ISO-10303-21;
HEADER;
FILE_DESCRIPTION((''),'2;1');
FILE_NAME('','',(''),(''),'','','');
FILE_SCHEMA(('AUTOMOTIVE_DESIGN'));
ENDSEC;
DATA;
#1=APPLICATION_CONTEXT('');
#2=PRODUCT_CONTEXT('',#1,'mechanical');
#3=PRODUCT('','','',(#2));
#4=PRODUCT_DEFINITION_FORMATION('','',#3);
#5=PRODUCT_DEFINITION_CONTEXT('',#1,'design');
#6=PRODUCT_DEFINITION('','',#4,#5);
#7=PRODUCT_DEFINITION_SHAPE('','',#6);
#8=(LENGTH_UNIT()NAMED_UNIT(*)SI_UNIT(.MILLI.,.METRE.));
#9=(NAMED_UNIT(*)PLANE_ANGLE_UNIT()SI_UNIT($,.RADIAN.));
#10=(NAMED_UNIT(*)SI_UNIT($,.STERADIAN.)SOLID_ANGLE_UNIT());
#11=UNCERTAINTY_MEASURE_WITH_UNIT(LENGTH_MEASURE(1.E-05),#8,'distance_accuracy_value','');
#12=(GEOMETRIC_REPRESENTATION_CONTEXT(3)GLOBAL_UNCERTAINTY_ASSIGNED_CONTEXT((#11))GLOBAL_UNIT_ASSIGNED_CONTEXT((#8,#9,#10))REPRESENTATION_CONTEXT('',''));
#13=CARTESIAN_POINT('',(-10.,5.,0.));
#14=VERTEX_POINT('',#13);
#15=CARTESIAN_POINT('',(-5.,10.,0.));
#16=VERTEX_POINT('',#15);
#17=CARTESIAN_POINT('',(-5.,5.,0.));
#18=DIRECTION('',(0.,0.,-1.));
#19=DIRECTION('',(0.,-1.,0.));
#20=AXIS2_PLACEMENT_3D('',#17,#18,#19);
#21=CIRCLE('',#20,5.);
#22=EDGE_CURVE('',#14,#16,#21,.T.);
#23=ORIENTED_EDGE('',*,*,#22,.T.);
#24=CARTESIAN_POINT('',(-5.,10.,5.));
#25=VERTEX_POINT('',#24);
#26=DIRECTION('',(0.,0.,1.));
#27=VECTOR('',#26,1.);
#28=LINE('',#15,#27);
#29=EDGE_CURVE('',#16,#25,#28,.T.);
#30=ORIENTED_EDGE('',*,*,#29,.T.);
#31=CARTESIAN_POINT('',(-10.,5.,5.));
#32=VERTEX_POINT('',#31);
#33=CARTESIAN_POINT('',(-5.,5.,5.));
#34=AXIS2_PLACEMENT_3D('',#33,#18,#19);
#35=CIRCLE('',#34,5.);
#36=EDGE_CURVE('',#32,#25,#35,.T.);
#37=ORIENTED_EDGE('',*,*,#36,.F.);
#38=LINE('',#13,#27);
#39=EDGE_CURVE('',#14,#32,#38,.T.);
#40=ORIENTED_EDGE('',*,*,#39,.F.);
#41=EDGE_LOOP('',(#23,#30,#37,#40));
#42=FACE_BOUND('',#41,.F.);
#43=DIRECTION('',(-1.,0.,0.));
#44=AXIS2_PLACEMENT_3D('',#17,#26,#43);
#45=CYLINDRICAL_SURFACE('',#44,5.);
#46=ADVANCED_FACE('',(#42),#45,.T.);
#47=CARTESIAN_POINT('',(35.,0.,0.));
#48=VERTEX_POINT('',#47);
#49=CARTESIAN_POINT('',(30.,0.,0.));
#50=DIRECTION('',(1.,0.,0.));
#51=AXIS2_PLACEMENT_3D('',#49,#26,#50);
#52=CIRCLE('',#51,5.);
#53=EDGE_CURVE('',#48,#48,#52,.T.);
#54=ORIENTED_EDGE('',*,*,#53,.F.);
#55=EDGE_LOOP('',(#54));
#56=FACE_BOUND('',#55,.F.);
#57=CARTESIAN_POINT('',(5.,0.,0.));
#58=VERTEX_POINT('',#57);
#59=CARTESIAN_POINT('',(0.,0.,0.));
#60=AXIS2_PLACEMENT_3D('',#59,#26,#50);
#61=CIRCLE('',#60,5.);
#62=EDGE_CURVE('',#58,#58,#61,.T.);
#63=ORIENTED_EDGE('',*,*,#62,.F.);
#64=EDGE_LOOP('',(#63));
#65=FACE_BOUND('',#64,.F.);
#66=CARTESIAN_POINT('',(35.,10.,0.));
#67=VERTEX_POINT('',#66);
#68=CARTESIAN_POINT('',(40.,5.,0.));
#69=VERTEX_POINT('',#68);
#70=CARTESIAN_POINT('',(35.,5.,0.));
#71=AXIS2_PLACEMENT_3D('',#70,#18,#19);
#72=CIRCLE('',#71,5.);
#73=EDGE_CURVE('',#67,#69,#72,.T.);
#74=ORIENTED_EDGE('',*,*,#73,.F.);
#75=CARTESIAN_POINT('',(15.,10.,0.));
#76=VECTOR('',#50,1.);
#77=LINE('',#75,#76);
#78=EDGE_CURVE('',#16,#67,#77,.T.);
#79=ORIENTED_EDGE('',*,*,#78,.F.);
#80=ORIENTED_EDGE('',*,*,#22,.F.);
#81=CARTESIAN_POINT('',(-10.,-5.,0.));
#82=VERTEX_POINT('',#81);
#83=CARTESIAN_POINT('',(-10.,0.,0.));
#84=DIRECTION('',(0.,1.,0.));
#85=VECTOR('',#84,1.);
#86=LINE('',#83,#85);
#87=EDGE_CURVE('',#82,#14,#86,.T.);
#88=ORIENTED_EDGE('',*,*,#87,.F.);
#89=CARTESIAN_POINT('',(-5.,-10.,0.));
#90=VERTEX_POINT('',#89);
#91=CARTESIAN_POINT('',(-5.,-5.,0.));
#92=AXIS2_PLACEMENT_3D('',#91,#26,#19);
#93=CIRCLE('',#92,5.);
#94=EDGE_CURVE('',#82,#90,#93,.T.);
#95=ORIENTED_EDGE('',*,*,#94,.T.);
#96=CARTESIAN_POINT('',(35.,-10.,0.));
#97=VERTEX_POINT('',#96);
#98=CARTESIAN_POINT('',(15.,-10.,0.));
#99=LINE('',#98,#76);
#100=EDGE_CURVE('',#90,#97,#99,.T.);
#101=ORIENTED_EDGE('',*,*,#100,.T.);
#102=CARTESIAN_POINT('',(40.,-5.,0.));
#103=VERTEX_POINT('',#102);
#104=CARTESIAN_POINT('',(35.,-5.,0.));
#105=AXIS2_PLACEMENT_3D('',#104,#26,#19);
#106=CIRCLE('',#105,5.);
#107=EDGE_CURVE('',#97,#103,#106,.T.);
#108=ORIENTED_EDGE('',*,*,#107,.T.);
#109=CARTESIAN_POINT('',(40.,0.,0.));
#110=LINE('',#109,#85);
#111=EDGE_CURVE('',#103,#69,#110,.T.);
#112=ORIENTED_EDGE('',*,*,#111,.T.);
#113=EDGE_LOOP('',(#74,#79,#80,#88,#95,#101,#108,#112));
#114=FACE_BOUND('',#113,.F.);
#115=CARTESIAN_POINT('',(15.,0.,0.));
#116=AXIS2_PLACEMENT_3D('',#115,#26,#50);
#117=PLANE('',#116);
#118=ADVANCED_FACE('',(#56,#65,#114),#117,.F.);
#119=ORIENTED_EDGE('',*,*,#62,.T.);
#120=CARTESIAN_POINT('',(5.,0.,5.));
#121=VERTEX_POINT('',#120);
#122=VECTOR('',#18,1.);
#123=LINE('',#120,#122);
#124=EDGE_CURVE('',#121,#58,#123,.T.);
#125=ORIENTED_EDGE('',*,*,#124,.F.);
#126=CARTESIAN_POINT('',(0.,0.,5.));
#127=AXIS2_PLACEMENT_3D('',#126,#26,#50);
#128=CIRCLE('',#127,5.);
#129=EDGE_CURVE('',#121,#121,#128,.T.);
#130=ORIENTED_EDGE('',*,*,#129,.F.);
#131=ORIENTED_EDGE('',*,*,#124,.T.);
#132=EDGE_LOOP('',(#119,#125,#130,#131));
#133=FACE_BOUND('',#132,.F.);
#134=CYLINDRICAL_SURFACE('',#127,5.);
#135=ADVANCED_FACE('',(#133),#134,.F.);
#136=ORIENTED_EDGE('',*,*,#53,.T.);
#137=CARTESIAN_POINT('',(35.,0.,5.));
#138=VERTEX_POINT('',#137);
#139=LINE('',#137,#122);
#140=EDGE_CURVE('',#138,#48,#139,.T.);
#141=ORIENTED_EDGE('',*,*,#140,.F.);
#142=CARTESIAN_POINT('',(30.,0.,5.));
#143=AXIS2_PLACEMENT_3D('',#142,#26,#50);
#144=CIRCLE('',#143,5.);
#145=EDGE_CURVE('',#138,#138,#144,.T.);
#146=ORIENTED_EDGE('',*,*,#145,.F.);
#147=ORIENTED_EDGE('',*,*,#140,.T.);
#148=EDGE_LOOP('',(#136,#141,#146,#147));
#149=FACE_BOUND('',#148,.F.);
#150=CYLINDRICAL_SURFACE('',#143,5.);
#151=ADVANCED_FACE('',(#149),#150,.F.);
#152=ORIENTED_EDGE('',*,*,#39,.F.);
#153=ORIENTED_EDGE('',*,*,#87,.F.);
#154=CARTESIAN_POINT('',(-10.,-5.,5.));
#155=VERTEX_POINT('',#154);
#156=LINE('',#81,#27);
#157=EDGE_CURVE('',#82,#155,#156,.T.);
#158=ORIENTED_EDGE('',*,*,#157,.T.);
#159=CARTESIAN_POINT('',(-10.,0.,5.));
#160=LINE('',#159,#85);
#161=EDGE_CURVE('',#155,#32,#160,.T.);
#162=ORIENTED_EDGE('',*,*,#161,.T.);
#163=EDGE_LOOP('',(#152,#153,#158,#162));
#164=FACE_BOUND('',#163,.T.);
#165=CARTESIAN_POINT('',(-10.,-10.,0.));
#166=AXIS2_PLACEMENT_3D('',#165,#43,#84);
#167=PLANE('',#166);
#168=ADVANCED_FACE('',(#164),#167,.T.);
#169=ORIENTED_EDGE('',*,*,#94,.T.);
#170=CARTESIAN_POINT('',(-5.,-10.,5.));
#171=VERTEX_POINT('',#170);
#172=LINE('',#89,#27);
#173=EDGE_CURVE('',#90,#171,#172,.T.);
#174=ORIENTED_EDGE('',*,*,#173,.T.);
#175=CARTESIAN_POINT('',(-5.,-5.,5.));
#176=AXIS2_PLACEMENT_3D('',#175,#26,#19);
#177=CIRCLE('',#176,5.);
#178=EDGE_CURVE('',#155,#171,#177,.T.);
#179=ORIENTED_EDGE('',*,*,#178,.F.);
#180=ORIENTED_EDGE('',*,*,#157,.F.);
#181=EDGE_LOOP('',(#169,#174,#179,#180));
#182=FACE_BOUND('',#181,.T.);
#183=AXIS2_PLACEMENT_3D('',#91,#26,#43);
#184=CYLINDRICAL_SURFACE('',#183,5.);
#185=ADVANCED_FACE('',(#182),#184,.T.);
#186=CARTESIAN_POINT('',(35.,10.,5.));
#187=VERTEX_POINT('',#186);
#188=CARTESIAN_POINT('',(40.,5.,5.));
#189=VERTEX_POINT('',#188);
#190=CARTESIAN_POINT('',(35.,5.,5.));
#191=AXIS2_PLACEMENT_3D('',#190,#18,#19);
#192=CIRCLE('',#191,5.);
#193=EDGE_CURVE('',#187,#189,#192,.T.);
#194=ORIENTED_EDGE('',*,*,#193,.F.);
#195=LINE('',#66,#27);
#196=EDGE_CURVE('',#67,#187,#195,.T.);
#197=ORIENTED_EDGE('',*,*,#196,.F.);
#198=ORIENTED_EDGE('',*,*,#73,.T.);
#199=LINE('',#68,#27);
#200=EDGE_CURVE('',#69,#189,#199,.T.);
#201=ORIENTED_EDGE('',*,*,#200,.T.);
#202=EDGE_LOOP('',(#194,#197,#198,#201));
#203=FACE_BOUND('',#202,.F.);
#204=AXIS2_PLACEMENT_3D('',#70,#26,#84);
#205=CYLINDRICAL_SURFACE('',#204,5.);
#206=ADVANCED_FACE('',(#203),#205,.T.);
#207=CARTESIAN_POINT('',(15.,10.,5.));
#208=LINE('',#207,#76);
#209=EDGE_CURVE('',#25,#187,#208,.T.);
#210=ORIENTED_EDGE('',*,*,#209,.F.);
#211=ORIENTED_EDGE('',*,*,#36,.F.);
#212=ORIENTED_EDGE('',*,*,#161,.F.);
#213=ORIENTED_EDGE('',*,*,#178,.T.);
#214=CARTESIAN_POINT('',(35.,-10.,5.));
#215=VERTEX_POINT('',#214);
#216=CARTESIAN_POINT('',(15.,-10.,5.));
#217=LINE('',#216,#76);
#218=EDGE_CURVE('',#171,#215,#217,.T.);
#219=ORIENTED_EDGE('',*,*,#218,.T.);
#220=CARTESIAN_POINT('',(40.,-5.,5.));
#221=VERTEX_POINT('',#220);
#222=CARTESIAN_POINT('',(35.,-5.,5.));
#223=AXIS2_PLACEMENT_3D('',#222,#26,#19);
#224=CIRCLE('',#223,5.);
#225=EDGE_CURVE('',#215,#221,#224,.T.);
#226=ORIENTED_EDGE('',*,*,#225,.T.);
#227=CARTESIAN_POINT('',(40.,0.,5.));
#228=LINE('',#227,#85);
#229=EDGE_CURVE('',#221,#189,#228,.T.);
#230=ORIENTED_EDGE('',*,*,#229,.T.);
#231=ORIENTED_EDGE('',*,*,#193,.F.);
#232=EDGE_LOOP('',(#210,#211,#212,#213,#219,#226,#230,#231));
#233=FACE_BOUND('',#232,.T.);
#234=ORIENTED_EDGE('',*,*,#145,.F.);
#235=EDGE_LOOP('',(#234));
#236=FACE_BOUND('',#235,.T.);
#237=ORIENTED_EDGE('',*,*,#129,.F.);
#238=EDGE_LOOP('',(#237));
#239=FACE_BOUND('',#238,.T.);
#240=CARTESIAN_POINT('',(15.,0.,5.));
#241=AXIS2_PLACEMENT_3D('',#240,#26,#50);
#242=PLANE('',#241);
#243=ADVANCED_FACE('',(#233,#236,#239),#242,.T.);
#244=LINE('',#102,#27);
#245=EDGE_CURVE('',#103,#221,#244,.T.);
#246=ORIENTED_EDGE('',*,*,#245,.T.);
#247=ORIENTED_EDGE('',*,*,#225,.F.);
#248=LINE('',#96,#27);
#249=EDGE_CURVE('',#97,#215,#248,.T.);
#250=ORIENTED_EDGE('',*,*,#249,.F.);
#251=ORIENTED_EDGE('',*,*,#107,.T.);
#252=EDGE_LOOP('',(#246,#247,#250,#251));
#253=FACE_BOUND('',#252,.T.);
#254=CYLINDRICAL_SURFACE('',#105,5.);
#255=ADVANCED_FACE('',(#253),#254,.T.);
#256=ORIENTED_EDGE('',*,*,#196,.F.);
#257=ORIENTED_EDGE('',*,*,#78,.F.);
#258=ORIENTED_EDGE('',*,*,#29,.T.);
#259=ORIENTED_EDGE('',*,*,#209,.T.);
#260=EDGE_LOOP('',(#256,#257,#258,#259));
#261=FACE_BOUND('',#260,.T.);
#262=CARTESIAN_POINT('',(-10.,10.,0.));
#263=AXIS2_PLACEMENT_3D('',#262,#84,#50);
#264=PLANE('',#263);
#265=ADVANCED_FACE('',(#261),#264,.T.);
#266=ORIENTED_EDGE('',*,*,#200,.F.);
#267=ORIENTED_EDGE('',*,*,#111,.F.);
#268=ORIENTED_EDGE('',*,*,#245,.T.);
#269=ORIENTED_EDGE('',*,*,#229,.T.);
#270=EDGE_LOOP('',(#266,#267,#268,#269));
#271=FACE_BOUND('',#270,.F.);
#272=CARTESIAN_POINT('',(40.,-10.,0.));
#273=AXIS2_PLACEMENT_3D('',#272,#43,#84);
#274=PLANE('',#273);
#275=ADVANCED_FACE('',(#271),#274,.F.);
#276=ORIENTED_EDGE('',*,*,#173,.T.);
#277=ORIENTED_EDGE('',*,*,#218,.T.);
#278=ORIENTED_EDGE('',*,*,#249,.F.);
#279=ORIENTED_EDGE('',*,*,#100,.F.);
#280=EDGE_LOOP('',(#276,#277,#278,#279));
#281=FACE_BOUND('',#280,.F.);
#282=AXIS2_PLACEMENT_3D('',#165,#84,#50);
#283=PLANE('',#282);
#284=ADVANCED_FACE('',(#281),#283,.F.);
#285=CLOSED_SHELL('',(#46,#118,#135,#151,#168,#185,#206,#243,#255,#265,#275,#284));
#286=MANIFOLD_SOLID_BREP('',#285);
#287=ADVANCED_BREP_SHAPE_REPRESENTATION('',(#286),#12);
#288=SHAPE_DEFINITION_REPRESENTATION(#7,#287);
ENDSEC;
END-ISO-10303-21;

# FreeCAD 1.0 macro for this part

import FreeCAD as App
import Part
import Sketcher
Q = App.Units.Quantity


def edges_at(feature, points):
    """Names of the edges that pass closest to the given points."""
    edges = feature.Shape.Edges
    near = lambda p: min(range(len(edges)), key=lambda i: edges[i].distToShape(Part.Vertex(*p))[0])
    return sorted({f"Edge{near(p) + 1}" for p in points})

doc = App.newDocument("Part")
body = doc.addObject("PartDesign::Body", "Body")

# Sketch on XY plane
sketch1 = body.newObject("Sketcher::SketchObject", "Sketch")
sketch1.AttachmentSupport = (doc.getObject("XY_Plane"), [""])
sketch1.MapMode = "FlatFace"
sketch1.addGeometry(Part.LineSegment(App.Vector(-10, 10, 0), App.Vector(-10, -10, 0)), False)
sketch1.addGeometry(Part.LineSegment(App.Vector(-10, -10, 0), App.Vector(40, -10, 0)), False)
sketch1.addGeometry(Part.LineSegment(App.Vector(40, -10, 0), App.Vector(40, 10, 0)), False)
sketch1.addGeometry(Part.LineSegment(App.Vector(40, 10, 0), App.Vector(-10, 10, 0)), False)
sketch1.addConstraint(Sketcher.Constraint("Coincident", 0, 2, 1, 1))
sketch1.addConstraint(Sketcher.Constraint("Coincident", 1, 2, 2, 1))
sketch1.addConstraint(Sketcher.Constraint("Coincident", 2, 2, 3, 1))
sketch1.addConstraint(Sketcher.Constraint("Coincident", 3, 2, 0, 1))
sketch1.addConstraint(Sketcher.Constraint("Vertical", 0))
sketch1.addConstraint(Sketcher.Constraint("Horizontal", 1))
sketch1.addConstraint(Sketcher.Constraint("Vertical", 2))
sketch1.addConstraint(Sketcher.Constraint("Horizontal", 3))
sketch1.addConstraint(Sketcher.Constraint("DistanceX", 1, 1, 1, 2, Q("50 mm")))
sketch1.addConstraint(Sketcher.Constraint("DistanceY", 0, 2, 0, 1, Q("20 mm")))
sketch1.addConstraint(Sketcher.Constraint("DistanceX", 0, 2, -1, 1, Q("10 mm")))
sketch1.addConstraint(Sketcher.Constraint("DistanceY", 0, 2, -1, 1, Q("10 mm")))
pad1 = body.newObject("PartDesign::Pad", "Pad")
pad1.Profile = sketch1
pad1.Length = 5

# Sketch on XY plane
sketch2 = body.newObject("Sketcher::SketchObject", "Sketch001")
sketch2.AttachmentSupport = (doc.getObject("XY_Plane"), [""])
sketch2.MapMode = "FlatFace"
sketch2.AttachmentOffset = App.Placement(App.Vector(0, 0, 5), App.Rotation())
sketch2.addGeometry(Part.Circle(App.Vector(0, 0, 0), App.Vector(0, 0, 1), 5), False)
sketch2.addConstraint(Sketcher.Constraint("Coincident", 0, 3, -1, 1))
sketch2.addConstraint(Sketcher.Constraint("Diameter", 0, Q("10 mm")))
pocket1 = body.newObject("PartDesign::Pocket", "Pocket")
pocket1.Profile = sketch2
pocket1.Type = "ThroughAll"

# Sketch on XY plane
sketch3 = body.newObject("Sketcher::SketchObject", "Sketch002")
sketch3.AttachmentSupport = (doc.getObject("XY_Plane"), [""])
sketch3.MapMode = "FlatFace"
sketch3.AttachmentOffset = App.Placement(App.Vector(0, 0, 5), App.Rotation())
sketch3.addGeometry(Part.Circle(App.Vector(30, 0, 0), App.Vector(0, 0, 1), 5), False)
sketch3.addConstraint(Sketcher.Constraint("PointOnObject", 0, 3, -1))
sketch3.addConstraint(Sketcher.Constraint("Diameter", 0, Q("10 mm")))
sketch3.addConstraint(Sketcher.Constraint("DistanceX", -1, 1, 0, 3, Q("30 mm")))
pocket2 = body.newObject("PartDesign::Pocket", "Pocket001")
pocket2.Profile = sketch3
pocket2.Type = "ThroughAll"
doc.recompute()

fillet = body.newObject("PartDesign::Fillet", "Fillet")
fillet.Base = (pocket2, edges_at(pocket2, [
    (-10, 10, 2.5),
    (-10, -10, 2.5),
    (40, 10, 2.5),
    (40, -10, 2.5),
]))
fillet.Radius = 5

doc.recompute()
